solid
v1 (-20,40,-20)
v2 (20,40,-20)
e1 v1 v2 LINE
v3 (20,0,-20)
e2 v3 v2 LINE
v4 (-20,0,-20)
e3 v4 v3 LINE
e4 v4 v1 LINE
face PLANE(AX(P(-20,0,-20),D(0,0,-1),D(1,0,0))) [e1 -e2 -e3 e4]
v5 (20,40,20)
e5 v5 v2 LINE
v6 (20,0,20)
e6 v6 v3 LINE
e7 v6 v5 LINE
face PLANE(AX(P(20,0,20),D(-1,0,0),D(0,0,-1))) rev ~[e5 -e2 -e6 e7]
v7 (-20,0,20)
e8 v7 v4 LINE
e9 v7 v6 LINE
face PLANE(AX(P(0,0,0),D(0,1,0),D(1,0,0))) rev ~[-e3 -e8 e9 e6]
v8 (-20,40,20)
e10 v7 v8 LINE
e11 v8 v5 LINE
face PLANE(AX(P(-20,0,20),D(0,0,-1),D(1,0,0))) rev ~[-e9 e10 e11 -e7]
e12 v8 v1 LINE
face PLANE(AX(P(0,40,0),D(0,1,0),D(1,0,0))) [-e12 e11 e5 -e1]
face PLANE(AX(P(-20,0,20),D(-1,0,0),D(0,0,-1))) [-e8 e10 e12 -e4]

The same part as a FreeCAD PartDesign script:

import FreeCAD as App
import Part
import Sketcher

V = App.Vector
Q = App.Units.Quantity


def add_polygon(sketch, points):
    """Adds a closed chain of lines whose ends are joined by coincident constraints."""
    first, n = sketch.GeometryCount, len(points)
    for a, b in zip(points, points[1:] + points[:1]):
        sketch.addGeometry(Part.LineSegment(App.Vector(*a, 0), App.Vector(*b, 0)), False)
    for i in range(n):
        sketch.addConstraint(Sketcher.Constraint("Coincident", first + i, 2, first + (i + 1) % n, 1))

doc = App.newDocument("Part")
body = doc.addObject("PartDesign::Body", "Body")

# Sketch on XZ plane
sketch1 = body.newObject("Sketcher::SketchObject", "Sketch")
sketch1.AttachmentSupport = (doc.getObject("XZ_Plane"), [""])
sketch1.MapMode = "FlatFace"
add_polygon(sketch1, [(-20, -20), (-20, 20), (20, 20), (20, -20)])  # lines 0-3
sketch1.addConstraint([
    Sketcher.Constraint("Vertical", 0),
    Sketcher.Constraint("Horizontal", 1),
    Sketcher.Constraint("Vertical", 2),
    Sketcher.Constraint("Horizontal", 3),
    Sketcher.Constraint("Symmetric", 0, 2, 2, 2, -1, 1),
    Sketcher.Constraint("Equal", 3, 0),
    Sketcher.Constraint("DistanceX", 1, 1, 1, 2, Q("40 mm")),
])
pad1 = body.newObject("PartDesign::Pad", "Pad")
pad1.Profile = sketch1
pad1.Length = 40
pad1.Reversed = True

doc.recompute()
